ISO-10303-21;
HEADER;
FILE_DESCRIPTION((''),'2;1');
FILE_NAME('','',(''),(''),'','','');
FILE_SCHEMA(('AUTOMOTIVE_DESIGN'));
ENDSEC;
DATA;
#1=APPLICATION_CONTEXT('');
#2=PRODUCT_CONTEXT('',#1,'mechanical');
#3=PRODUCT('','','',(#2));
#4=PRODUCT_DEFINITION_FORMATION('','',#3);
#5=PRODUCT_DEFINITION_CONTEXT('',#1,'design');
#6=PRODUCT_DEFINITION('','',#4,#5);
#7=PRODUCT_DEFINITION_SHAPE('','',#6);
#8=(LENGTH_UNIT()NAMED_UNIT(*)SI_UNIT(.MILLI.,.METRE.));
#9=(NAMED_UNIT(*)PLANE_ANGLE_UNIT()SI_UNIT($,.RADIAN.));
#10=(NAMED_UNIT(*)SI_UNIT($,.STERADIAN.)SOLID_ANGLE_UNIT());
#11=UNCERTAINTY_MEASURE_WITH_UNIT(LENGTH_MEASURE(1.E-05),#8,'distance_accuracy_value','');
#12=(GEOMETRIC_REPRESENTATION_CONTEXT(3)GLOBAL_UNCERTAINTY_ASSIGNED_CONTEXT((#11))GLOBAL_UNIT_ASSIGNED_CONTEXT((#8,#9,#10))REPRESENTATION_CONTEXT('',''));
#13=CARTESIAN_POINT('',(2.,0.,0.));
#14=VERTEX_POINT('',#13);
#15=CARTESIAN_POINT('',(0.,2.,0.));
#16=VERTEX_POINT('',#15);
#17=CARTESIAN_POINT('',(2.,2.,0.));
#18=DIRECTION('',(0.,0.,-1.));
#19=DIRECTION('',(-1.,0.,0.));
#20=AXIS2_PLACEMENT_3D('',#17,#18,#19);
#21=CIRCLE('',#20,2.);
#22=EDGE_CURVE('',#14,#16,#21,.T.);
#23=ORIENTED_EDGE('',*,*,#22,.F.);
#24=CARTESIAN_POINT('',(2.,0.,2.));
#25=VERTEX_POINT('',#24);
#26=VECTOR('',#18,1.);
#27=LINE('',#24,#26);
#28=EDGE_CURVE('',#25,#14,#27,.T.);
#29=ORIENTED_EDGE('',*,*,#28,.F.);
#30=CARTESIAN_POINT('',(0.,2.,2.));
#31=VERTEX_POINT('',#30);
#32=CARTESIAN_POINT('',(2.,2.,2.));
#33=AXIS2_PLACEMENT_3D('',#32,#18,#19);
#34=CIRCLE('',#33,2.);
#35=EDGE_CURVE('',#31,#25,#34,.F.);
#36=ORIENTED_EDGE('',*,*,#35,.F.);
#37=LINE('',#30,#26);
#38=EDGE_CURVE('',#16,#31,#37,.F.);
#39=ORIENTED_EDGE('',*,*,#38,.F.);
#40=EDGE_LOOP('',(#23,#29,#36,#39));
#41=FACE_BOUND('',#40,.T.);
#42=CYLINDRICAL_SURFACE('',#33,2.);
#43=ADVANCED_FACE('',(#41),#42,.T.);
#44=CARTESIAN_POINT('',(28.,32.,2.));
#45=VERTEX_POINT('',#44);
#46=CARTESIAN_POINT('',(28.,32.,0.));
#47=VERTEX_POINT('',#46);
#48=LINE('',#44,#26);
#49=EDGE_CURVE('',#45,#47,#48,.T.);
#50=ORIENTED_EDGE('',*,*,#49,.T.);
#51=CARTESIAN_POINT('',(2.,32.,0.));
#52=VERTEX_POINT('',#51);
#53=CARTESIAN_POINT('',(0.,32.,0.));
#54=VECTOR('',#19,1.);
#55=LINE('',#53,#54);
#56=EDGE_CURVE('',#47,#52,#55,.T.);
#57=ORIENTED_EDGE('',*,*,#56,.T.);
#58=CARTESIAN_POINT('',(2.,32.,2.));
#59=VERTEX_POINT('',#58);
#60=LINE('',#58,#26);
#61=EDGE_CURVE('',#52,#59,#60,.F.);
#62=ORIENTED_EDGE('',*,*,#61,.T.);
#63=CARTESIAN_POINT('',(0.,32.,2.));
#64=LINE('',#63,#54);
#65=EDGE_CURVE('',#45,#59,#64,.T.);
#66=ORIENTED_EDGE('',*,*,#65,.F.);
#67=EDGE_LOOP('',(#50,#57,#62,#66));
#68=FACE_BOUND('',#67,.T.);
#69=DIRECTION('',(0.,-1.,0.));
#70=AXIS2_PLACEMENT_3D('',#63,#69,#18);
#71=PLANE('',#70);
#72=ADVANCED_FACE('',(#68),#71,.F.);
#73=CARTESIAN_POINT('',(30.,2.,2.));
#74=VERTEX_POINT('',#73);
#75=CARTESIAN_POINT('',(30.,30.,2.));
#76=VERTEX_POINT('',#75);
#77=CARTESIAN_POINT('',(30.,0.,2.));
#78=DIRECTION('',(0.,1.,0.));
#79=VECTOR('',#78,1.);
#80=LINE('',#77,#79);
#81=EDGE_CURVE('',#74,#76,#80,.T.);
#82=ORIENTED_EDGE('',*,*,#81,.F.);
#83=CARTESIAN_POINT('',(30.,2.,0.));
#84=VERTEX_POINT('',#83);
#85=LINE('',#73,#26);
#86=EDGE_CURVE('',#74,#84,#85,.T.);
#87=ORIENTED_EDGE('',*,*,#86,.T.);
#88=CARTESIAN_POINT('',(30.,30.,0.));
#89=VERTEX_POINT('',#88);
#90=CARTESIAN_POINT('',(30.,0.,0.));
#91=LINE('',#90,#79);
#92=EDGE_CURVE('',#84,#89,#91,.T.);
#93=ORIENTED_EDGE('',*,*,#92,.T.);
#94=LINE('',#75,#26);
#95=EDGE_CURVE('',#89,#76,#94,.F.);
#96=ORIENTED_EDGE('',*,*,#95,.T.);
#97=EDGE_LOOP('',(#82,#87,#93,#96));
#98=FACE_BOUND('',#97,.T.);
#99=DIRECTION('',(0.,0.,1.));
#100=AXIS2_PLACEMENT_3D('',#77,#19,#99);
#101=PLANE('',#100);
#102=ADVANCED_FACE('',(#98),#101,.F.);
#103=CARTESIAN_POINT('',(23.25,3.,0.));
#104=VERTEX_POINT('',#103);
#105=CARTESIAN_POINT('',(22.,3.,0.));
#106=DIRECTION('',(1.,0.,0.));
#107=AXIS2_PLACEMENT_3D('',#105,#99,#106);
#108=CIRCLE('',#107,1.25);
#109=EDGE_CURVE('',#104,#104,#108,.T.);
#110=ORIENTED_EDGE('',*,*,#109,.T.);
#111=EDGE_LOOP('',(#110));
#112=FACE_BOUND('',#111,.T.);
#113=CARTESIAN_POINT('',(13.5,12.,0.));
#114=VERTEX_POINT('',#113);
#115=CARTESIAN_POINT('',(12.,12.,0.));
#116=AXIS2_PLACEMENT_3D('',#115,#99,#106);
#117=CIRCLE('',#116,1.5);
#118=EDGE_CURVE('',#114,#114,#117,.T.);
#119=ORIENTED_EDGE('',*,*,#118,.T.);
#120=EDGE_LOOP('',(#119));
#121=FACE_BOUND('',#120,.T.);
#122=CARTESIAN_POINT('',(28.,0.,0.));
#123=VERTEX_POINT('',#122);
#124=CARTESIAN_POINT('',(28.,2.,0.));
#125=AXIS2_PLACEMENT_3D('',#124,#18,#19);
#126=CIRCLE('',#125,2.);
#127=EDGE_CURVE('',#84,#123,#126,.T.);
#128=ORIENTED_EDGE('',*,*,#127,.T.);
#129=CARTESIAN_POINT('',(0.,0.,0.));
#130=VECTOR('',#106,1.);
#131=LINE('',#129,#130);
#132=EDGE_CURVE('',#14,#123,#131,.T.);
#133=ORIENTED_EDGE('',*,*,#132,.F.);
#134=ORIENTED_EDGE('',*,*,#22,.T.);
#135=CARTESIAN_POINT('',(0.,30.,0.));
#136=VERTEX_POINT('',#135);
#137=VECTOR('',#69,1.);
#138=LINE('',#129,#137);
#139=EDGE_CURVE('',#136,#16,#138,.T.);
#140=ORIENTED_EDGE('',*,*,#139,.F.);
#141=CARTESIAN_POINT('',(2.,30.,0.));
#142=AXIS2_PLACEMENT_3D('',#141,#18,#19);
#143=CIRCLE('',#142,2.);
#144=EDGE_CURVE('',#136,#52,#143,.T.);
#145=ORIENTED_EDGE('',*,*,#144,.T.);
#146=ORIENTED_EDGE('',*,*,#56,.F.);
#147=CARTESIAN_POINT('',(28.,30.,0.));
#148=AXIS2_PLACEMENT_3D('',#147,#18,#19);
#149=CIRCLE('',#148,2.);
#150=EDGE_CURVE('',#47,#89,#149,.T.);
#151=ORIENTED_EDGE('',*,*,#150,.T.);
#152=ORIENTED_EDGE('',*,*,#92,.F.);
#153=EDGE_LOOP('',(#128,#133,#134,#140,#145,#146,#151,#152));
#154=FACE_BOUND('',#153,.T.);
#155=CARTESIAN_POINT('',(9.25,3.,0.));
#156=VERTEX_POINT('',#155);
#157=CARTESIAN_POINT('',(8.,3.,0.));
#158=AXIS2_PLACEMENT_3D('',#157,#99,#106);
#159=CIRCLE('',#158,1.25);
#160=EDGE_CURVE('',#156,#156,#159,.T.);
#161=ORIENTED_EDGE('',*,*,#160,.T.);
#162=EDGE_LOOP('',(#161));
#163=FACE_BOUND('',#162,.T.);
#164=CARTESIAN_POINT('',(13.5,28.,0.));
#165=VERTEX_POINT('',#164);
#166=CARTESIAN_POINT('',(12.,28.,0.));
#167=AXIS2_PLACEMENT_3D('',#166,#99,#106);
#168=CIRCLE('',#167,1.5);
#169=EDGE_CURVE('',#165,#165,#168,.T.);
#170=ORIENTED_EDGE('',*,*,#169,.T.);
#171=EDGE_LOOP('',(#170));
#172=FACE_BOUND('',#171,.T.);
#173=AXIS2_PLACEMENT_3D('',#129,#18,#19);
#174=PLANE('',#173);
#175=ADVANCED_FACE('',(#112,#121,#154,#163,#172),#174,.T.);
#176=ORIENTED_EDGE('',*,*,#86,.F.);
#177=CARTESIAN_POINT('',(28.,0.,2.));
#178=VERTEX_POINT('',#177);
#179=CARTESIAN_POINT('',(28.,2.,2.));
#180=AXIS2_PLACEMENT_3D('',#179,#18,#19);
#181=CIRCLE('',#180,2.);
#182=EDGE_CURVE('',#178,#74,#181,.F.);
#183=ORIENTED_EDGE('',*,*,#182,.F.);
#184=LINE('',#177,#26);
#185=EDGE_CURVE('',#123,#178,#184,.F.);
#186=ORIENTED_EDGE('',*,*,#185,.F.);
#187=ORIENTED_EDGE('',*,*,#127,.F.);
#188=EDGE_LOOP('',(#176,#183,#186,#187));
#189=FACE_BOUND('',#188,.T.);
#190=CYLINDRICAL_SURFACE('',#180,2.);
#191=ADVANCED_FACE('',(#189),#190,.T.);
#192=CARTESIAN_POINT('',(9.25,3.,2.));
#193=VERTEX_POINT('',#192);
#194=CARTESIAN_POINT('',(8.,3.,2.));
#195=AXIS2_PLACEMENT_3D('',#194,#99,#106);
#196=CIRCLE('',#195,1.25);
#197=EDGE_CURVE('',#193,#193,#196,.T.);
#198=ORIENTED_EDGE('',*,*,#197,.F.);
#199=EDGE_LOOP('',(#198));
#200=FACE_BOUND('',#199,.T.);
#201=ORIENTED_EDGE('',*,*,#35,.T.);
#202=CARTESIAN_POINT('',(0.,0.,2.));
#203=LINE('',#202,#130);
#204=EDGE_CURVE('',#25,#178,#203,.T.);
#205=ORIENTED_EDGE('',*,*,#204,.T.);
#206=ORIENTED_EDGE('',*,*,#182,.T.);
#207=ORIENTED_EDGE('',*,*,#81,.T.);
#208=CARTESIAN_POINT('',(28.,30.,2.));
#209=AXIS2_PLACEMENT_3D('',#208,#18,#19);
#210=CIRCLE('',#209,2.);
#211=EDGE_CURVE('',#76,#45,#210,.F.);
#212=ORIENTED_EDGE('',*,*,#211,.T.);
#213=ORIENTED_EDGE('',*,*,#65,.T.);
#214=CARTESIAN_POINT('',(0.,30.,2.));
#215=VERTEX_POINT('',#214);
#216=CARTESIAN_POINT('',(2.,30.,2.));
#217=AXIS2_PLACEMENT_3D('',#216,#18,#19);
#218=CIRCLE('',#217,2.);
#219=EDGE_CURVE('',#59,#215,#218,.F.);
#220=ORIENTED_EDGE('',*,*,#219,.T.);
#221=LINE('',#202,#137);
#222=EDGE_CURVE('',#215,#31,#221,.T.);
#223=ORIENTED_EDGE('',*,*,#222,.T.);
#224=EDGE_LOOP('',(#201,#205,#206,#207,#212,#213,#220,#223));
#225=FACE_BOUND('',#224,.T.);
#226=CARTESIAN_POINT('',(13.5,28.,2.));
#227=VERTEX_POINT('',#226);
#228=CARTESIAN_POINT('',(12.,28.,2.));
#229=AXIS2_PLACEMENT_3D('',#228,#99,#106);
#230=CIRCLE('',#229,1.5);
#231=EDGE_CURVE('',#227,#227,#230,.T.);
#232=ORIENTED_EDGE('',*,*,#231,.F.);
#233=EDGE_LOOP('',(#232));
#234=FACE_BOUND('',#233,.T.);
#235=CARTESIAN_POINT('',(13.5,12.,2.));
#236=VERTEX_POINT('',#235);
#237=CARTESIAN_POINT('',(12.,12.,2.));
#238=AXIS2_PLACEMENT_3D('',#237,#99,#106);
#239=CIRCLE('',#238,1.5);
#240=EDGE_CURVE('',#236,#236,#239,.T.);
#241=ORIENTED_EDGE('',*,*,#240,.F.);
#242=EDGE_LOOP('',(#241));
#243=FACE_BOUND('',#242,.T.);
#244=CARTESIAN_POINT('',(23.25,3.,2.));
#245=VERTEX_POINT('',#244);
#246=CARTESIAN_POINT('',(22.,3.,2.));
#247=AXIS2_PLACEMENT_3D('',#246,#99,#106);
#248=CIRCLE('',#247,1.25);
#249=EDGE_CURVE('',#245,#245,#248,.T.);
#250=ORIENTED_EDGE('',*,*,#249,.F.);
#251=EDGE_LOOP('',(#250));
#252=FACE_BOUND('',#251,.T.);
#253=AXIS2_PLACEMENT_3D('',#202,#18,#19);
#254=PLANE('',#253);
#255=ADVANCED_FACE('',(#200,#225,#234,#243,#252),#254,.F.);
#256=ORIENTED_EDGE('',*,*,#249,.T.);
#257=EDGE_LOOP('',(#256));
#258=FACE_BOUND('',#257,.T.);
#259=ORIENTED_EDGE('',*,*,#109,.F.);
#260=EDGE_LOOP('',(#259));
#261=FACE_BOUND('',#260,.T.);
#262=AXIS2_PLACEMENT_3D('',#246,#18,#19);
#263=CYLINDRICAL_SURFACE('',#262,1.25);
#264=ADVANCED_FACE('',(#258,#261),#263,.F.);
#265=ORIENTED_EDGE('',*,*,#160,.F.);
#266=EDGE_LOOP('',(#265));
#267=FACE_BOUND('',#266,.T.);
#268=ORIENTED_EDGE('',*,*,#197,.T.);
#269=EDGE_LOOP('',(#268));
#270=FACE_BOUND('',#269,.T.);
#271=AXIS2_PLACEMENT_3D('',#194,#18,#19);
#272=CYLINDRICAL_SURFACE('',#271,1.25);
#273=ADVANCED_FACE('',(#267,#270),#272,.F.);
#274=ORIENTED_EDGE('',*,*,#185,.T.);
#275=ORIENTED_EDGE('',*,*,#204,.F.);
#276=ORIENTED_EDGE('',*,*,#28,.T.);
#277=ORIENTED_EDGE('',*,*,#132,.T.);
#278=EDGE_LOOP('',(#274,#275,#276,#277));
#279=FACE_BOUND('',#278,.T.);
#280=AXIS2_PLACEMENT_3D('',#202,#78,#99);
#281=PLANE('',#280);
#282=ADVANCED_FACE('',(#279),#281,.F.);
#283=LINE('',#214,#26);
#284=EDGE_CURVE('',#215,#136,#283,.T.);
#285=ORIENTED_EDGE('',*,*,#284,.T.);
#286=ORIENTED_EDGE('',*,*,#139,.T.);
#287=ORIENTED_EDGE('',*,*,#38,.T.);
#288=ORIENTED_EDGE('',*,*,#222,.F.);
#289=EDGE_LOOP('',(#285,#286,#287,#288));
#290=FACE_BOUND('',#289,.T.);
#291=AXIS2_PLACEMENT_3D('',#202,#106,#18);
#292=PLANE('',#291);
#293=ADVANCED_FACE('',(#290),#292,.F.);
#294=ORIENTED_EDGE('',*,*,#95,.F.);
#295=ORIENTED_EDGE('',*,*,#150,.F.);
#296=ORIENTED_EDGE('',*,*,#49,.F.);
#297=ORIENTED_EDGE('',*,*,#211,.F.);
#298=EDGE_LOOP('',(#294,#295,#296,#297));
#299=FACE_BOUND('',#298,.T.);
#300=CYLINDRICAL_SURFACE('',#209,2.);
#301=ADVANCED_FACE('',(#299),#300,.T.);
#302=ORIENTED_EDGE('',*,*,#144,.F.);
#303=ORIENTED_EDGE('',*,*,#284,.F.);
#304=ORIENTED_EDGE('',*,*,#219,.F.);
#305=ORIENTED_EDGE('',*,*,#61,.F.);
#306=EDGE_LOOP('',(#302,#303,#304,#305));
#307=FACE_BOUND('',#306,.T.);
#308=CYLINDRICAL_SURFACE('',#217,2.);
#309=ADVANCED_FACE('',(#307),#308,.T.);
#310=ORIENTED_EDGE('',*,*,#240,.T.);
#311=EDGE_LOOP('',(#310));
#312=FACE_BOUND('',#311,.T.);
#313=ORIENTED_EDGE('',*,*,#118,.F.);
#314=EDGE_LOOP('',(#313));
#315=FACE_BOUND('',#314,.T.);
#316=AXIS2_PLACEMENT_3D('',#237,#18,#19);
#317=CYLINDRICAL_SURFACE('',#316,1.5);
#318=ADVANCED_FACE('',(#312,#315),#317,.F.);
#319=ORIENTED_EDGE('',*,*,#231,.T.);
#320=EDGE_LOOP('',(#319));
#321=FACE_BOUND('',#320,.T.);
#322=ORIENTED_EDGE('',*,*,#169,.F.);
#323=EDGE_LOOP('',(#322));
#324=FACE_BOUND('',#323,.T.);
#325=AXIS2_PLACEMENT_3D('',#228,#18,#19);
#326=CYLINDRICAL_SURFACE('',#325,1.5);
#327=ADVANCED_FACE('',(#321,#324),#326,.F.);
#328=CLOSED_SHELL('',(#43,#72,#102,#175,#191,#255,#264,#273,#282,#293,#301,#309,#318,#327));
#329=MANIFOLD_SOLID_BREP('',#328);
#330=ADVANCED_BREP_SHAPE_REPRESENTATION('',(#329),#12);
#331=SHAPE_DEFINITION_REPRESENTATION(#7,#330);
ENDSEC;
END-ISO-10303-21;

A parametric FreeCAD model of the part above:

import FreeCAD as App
import Part
import Sketcher


def edges_at(feature, points):
    """Names of the edges that pass closest to the given points."""
    edges = feature.Shape.Edges
    near = lambda p: min(range(len(edges)), key=lambda i: edges[i].distToShape(Part.Vertex(*p))[0])
    return sorted({f"Edge{near(p) + 1}" for p in points})


def add_polygon(sketch, points):
    """Adds a closed chain of lines whose ends are joined by coincident constraints."""
    first, n = sketch.GeometryCount, len(points)
    for a, b in zip(points, points[1:] + points[:1]):
        sketch.addGeometry(Part.LineSegment(App.Vector(*a, 0), App.Vector(*b, 0)), False)
    for i in range(n):
        sketch.addConstraint(Sketcher.Constraint("Coincident", first + i, 2, first + (i + 1) % n, 1))

doc = App.newDocument("Part")
body = doc.addObject("PartDesign::Body", "Body")

sketch1 = body.newObject("Sketcher::SketchObject", "Sketch")
sketch1.AttachmentSupport = (doc.getObject("XY_Plane"), [""])
sketch1.MapMode = "FlatFace"
add_polygon(sketch1, [(0, 32), (0, 0), (30, 0), (30, 32)])
sketch1.addGeometry(Part.Circle(App.Vector(8, 3, 0), App.Vector(0, 0, 1), 1.2), False)
sketch1.addGeometry(Part.Circle(App.Vector(12, 12, 0), App.Vector(0, 0, 1), 1.5), False)
sketch1.addGeometry(Part.Circle(App.Vector(22, 3, 0), App.Vector(0, 0, 1), 1.2), False)
sketch1.addGeometry(Part.Circle(App.Vector(12, 28, 0), App.Vector(0, 0, 1), 1.5), False)
sketch1.addConstraint([
    Sketcher.Constraint("Vertical", 0),
    Sketcher.Constraint("Horizontal", 1),
    Sketcher.Constraint("Vertical", 2),
    Sketcher.Constraint("Horizontal", 3),
    Sketcher.Constraint("Coincident", 0, 2, -1, 1),
    Sketcher.Constraint("Equal", 4, 6),
    Sketcher.Constraint("Equal", 5, 7),
    Sketcher.Constraint("Horizontal", 4, 3, 6, 3),
    Sketcher.Constraint("Vertical", 5, 3, 7, 3),
    Sketcher.Constraint("Diameter", 5, 3.0),
    Sketcher.Constraint("Diameter", 4, 2.5),
    Sketcher.Constraint("DistanceX", 1, 1, 1, 2, 30.0),
    Sketcher.Constraint("DistanceY", 0, 2, 0, 1, 32.0),
    Sketcher.Constraint("DistanceX", -1, 1, 4, 3, 8.0),
    Sketcher.Constraint("DistanceY", -1, 1, 4, 3, 3.0),
    Sketcher.Constraint("DistanceX", -1, 1, 5, 3, 12.0),
    Sketcher.Constraint("DistanceY", -1, 1, 5, 3, 12.0),
    Sketcher.Constraint("DistanceX", -1, 1, 6, 3, 22.0),
    Sketcher.Constraint("DistanceY", -1, 1, 7, 3, 28.0),
])
pad1 = body.newObject("PartDesign::Pad", "Pad")
pad1.Profile = sketch1
pad1.Length = 2
doc.recompute()

fillet = body.newObject("PartDesign::Fillet", "Fillet")
fillet.Base = (pad1, edges_at(pad1, [
    (0, 32, 1),
    (30, 32, 1),
    (30, 0, 1),
    (0, 0, 1),
]))
fillet.Radius = 2

doc.recompute()
